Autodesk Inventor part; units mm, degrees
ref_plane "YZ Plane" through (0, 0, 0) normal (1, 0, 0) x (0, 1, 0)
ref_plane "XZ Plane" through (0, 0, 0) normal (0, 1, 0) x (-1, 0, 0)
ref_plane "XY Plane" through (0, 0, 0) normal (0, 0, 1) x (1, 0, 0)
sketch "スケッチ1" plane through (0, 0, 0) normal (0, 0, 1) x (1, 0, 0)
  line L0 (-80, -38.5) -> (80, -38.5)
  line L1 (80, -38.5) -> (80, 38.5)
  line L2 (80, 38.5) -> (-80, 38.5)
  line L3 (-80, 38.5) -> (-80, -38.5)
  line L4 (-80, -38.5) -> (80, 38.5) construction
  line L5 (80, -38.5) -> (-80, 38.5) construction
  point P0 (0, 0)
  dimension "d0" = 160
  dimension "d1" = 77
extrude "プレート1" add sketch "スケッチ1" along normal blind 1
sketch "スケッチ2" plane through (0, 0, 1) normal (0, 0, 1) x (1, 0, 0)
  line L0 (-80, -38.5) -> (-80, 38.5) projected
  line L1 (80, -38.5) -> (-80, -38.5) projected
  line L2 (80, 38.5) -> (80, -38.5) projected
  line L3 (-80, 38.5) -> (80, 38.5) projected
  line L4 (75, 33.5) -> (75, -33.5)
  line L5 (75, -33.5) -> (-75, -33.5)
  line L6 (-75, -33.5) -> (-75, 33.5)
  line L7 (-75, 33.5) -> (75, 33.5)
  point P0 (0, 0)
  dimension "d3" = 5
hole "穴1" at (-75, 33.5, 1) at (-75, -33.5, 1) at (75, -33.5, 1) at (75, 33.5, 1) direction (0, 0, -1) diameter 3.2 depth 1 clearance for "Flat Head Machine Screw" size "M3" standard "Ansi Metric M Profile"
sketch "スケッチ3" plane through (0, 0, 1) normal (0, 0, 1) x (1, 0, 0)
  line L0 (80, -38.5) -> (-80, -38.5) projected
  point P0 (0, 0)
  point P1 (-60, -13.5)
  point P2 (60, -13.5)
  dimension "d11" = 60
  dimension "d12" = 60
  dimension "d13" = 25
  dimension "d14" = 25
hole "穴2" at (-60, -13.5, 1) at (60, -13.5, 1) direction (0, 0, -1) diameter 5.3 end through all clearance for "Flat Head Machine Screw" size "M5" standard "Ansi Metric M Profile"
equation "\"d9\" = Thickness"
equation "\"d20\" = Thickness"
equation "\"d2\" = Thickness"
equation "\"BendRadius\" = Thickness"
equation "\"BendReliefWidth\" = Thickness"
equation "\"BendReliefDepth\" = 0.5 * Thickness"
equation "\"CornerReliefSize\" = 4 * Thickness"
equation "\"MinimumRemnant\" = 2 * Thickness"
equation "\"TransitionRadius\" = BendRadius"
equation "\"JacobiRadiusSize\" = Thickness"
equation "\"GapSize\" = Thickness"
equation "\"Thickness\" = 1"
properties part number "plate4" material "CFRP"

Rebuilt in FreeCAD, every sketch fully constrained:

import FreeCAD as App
import Part
import Sketcher
from FreeCAD import Vector
Q = App.Units.Quantity

doc = App.newDocument("Part")
body = doc.addObject("PartDesign::Body", "Body")

# Sketch on XY plane
sketch1 = doc.addObject("Sketcher::SketchObject", "Sketch")
body.addObject(sketch1)
sketch1.AttachmentSupport = (doc.XY_Plane, [""])
sketch1.MapMode = "FlatFace"
sketch1.addGeometry([
    Part.LineSegment(Vector(-80, 38, 0), Vector(-80, -38, 0)),
    Part.LineSegment(Vector(-80, -38, 0), Vector(80, -38, 0)),
    Part.LineSegment(Vector(80, -38, 0), Vector(80, 38, 0)),
    Part.LineSegment(Vector(80, 38, 0), Vector(-80, 38, 0)),
], False)
sketch1.addConstraint([
    Sketcher.Constraint("Coincident", 0, 2, 1, 1),
    Sketcher.Constraint("Coincident", 1, 2, 2, 1),
    Sketcher.Constraint("Coincident", 2, 2, 3, 1),
    Sketcher.Constraint("Coincident", 3, 2, 0, 1),
    Sketcher.Constraint("Vertical", 0),
    Sketcher.Constraint("Horizontal", 1),
    Sketcher.Constraint("Vertical", 2),
    Sketcher.Constraint("Horizontal", 3),
    Sketcher.Constraint("Symmetric", 0, 2, 2, 2, -1, 1),
    Sketcher.Constraint("DistanceX", 1, 1, 1, 2, Q("160 mm")),
    Sketcher.Constraint("DistanceY", 0, 2, 0, 1, Q("77 mm")),
])
pad1 = doc.addObject("PartDesign::Pad", "Pad")
body.addObject(pad1)
pad1.Profile = sketch1
pad1.Length = 1

# Sketch on XY plane
sketch2 = doc.addObject("Sketcher::SketchObject", "Sketch001")
body.addObject(sketch2)
sketch2.AttachmentSupport = (doc.XY_Plane, [""])
sketch2.MapMode = "FlatFace"
sketch2.AttachmentOffset = App.Placement(Vector(0, 0, 1), App.Rotation())
sketch2.addGeometry([
    Part.Circle(Vector(-75, 33.5, 0), Vector(0, 0, 1), 1.6),
    Part.Circle(Vector(-75, -33.5, 0), Vector(0, 0, 1), 1.6),
    Part.Circle(Vector(75, -33.5, 0), Vector(0, 0, 1), 1.6),
    Part.Circle(Vector(75, 33.5, 0), Vector(0, 0, 1), 1.6),
], False)
sketch2.addConstraint([
    Sketcher.Constraint("Equal", 0, 1),
    Sketcher.Constraint("Equal", 1, 2),
    Sketcher.Constraint("Equal", 2, 3),
    Sketcher.Constraint("Symmetric", 0, 3, 2, 3, -1, 1),
    Sketcher.Constraint("Symmetric", 1, 3, 3, 3, -1, 1),
    Sketcher.Constraint("Symmetric", 1, 3, 2, 3, -2),
    Sketcher.Constraint("Diameter", 0, Q("3.2 mm")),
    Sketcher.Constraint("DistanceX", 0, 3, -1, 1, Q("75 mm")),
    Sketcher.Constraint("DistanceY", 1, 3, 0, 3, Q("67 mm")),
])
doc.recompute()
hole = doc.addObject("PartDesign::Hole", "Hole")
body.addObject(hole)
hole.Profile = sketch2
hole.ThreadType = "None"
hole.Diameter = 3.2
hole.DepthType = "Dimension"
hole.Depth = 1
hole.DrillPoint = "Flat"

# Sketch on XY plane
sketch3 = doc.addObject("Sketcher::SketchObject", "Sketch002")
body.addObject(sketch3)
sketch3.AttachmentSupport = (doc.XY_Plane, [""])
sketch3.MapMode = "FlatFace"
sketch3.AttachmentOffset = App.Placement(Vector(0, 0, 1), App.Rotation())
sketch3.addGeometry([
    Part.Circle(Vector(-60, -13.5, 0), Vector(0, 0, 1), 2.6),
    Part.Circle(Vector(60, -13.5, 0), Vector(0, 0, 1), 2.6),
], False)
sketch3.addConstraint([
    Sketcher.Constraint("Equal", 0, 1),
    Sketcher.Constraint("Symmetric", 0, 3, 1, 3, -2),
    Sketcher.Constraint("Diameter", 0, Q("5.3 mm")),
    Sketcher.Constraint("DistanceX", 0, 3, -1, 1, Q("60 mm")),
    Sketcher.Constraint("DistanceY", 0, 3, -1, 1, Q("13.5 mm")),
])
doc.recompute()
hole2 = doc.addObject("PartDesign::Hole", "Hole001")
body.addObject(hole2)
hole2.Profile = sketch3
hole2.ThreadType = "None"
hole2.Diameter = 5.3
hole2.DepthType = "ThroughAll"

doc.recompute()
